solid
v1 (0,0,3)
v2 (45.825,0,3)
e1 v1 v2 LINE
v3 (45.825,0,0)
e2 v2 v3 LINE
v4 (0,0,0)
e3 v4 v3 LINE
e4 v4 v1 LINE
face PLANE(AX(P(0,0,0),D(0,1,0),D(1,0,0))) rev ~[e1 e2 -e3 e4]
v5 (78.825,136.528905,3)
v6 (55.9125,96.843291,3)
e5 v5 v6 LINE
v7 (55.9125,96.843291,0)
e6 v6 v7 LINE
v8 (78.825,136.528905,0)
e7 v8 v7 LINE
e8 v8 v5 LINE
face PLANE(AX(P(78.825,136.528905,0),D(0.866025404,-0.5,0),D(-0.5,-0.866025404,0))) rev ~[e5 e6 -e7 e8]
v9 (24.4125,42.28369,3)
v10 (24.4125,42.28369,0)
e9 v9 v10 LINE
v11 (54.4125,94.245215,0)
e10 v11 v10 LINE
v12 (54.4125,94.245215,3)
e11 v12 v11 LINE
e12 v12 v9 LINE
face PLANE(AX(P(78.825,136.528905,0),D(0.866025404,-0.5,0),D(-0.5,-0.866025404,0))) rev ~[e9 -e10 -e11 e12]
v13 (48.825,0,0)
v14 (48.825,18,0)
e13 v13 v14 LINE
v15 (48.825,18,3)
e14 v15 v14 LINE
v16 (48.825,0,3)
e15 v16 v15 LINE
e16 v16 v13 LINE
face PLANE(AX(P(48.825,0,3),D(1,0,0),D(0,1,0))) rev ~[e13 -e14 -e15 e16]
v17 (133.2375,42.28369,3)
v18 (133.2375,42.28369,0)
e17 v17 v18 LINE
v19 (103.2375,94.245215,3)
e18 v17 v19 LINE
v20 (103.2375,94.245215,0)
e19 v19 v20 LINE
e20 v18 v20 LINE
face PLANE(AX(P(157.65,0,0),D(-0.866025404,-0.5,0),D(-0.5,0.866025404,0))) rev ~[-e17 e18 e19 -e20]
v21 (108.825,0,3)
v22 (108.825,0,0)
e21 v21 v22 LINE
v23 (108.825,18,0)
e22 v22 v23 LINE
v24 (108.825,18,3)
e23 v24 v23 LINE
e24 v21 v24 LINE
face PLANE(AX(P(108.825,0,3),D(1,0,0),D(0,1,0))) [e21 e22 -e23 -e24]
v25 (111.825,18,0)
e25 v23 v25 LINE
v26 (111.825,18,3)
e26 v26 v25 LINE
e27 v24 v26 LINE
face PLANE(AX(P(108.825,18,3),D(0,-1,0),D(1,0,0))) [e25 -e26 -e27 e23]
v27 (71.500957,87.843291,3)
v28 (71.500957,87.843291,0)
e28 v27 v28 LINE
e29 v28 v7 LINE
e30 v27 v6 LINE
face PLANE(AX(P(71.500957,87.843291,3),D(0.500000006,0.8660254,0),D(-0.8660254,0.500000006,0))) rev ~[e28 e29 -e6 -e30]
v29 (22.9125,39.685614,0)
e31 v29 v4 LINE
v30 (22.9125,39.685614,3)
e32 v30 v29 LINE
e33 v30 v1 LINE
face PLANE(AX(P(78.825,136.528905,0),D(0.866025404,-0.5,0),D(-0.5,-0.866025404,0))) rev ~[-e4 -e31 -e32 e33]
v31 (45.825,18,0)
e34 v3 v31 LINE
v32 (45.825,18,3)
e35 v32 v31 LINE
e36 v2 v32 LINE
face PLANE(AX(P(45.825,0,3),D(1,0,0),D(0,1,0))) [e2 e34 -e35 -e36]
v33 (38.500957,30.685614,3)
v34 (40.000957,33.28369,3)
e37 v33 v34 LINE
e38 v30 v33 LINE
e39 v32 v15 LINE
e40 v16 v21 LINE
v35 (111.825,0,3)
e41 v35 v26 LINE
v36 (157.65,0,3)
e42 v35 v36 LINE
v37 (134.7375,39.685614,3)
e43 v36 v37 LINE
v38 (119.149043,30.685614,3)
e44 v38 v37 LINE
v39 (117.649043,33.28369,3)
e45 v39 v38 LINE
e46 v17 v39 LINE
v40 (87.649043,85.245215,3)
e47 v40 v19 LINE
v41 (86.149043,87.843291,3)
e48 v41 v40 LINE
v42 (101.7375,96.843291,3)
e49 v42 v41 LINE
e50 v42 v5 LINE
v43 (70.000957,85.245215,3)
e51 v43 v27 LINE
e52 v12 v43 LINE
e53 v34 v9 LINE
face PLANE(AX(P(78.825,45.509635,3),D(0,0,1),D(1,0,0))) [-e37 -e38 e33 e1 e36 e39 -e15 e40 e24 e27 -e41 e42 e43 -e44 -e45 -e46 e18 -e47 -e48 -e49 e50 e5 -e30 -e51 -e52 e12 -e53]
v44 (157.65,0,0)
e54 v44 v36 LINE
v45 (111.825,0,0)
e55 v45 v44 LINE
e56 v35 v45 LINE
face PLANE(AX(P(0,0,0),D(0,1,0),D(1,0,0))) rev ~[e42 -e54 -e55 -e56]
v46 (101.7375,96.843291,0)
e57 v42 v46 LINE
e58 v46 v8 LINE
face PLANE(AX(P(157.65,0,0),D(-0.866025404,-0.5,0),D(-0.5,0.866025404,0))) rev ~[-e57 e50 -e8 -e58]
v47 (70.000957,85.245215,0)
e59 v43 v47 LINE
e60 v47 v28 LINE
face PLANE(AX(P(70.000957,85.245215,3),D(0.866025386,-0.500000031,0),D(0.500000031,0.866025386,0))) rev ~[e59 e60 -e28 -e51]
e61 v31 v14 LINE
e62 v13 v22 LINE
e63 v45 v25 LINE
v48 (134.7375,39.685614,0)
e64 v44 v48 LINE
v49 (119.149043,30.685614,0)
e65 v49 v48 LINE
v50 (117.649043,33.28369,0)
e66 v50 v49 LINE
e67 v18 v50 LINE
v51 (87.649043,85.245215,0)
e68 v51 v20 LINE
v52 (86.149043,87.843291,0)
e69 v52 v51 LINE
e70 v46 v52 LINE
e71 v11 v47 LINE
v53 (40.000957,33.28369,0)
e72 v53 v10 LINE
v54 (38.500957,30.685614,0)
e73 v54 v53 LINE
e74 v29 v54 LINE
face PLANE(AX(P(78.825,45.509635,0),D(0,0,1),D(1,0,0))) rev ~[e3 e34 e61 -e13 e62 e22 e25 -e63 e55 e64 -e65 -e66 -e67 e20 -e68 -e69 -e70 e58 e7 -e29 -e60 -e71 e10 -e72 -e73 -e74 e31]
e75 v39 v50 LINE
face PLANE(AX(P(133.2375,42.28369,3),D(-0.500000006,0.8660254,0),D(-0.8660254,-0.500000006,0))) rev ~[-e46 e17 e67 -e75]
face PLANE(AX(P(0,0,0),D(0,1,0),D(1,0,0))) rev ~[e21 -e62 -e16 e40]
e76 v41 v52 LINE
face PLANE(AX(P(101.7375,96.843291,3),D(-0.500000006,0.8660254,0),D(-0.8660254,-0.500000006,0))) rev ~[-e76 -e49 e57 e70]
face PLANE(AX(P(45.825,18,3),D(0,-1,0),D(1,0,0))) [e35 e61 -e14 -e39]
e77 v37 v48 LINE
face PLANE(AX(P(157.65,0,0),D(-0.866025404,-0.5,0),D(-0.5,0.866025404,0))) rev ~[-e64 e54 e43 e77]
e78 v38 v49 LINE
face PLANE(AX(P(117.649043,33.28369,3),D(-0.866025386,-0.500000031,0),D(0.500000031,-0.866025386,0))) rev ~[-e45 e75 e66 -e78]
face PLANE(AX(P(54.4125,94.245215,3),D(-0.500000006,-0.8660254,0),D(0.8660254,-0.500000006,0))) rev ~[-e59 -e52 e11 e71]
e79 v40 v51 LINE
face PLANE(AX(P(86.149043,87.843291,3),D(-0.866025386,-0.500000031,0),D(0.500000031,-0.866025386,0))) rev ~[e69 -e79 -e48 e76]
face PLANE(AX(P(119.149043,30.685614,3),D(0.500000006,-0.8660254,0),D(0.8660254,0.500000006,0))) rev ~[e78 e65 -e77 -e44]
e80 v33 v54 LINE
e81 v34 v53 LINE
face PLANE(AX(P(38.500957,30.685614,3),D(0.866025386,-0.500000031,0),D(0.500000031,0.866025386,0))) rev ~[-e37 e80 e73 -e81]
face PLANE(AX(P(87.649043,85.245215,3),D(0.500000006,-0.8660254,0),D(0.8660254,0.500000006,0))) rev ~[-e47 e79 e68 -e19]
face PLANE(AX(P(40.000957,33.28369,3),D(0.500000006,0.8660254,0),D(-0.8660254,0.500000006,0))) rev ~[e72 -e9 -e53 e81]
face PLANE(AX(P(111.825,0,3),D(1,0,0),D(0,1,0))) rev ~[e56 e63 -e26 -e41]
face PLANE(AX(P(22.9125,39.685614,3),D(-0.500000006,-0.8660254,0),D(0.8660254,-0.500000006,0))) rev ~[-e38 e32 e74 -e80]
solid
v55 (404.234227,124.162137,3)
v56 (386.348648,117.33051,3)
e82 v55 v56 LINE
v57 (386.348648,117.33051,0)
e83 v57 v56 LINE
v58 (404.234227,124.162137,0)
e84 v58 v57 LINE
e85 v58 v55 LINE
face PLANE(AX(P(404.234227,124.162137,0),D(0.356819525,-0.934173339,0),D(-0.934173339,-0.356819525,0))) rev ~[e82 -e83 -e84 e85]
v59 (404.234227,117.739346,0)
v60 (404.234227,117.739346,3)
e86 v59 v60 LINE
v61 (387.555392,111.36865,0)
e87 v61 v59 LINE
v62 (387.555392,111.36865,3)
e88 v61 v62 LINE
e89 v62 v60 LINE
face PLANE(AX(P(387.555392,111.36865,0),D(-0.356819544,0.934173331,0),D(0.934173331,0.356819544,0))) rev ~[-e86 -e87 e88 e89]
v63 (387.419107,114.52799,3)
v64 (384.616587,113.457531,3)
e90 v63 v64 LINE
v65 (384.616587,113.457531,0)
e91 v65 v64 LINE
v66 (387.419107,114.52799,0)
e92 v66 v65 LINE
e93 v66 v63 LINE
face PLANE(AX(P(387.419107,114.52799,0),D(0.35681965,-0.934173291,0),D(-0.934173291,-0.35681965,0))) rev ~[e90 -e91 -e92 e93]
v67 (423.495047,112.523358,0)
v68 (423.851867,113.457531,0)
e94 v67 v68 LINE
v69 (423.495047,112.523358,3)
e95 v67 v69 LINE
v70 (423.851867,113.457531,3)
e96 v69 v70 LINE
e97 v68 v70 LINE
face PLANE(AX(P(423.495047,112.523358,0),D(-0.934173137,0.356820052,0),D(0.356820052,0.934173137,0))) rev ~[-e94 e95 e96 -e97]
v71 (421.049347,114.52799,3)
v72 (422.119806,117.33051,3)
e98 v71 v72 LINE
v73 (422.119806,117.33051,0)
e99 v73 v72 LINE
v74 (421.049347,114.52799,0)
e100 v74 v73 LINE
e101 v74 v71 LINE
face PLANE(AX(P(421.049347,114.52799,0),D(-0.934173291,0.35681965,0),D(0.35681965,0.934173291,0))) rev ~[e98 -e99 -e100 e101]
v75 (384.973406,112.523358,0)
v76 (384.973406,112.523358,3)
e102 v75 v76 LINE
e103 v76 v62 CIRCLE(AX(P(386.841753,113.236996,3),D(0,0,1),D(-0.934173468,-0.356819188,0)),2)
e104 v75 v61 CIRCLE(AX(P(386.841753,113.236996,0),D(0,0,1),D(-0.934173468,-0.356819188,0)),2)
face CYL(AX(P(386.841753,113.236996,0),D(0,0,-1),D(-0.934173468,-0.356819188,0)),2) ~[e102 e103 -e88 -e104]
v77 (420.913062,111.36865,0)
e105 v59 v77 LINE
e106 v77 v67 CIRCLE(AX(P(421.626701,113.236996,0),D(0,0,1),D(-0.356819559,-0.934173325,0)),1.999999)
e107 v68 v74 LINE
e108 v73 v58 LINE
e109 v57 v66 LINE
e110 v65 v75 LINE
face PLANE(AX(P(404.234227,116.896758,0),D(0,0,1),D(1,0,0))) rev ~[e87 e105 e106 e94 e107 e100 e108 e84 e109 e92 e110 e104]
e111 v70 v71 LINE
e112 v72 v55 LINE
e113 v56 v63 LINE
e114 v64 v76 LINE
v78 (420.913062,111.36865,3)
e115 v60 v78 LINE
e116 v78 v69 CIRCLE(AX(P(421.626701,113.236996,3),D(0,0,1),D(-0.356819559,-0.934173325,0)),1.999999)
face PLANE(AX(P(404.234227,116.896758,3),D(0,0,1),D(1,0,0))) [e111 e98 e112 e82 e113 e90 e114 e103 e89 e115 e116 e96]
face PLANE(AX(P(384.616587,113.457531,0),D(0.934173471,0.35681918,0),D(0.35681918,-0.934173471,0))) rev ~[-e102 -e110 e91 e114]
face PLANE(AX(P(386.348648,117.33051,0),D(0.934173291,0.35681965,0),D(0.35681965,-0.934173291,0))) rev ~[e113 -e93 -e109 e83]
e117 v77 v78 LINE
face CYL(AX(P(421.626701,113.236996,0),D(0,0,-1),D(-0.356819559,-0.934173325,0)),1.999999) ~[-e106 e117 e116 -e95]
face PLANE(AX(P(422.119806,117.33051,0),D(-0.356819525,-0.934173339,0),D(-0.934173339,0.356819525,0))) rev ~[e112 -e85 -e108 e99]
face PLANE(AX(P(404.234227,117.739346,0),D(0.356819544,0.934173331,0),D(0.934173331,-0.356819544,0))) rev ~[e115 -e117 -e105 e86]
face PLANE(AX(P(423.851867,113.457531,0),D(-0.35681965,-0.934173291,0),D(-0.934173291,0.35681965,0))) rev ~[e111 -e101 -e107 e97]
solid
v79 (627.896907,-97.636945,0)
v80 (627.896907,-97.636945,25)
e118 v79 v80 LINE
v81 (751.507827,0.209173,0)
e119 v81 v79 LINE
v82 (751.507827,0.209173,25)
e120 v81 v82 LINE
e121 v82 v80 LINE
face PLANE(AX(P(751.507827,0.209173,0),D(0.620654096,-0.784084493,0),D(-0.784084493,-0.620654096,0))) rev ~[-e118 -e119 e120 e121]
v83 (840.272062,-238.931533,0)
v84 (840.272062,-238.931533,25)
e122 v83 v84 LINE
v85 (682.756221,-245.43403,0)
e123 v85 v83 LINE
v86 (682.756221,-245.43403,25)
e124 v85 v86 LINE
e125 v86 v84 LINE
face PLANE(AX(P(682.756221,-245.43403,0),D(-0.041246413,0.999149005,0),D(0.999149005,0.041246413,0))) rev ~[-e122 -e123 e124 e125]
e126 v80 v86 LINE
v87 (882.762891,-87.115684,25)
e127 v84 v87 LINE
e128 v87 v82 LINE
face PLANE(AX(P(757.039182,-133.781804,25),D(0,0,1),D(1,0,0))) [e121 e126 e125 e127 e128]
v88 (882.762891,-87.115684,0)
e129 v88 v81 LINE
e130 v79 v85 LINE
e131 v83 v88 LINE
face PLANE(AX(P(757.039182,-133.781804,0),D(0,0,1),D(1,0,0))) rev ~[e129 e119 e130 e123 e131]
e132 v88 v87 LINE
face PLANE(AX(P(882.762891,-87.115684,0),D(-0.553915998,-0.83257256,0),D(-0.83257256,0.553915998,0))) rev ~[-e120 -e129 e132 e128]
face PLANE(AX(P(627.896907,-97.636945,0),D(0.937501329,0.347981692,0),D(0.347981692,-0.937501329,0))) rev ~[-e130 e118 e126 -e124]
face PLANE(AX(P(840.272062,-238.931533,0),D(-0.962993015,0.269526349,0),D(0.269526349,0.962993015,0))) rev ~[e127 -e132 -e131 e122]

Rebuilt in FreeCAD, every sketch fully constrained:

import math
import FreeCAD as App
import Part
import Sketcher
from FreeCAD import Vector
Q = App.Units.Quantity


def add_polygon(sketch, points):
    """Adds a closed chain of lines whose ends are joined by coincident constraints."""
    first, n = sketch.GeometryCount, len(points)
    for a, b in zip(points, points[1:] + points[:1]):
        sketch.addGeometry(Part.LineSegment(App.Vector(*a, 0), App.Vector(*b, 0)), False)
    for i in range(n):
        sketch.addConstraint(Sketcher.Constraint("Coincident", first + i, 2, first + (i + 1) % n, 1))

doc = App.newDocument("Part")
body = doc.addObject("PartDesign::Body", "Body")

# Sketch on XY plane
sketch1 = body.newObject("Sketcher::SketchObject", "Sketch")
sketch1.AttachmentSupport = (doc.getObject("XY_Plane"), [""])
sketch1.MapMode = "FlatFace"
add_polygon(sketch1, [(78.825, 136.528905), (0, 0), (157.65, 0)])  # lines 0-2
sketch1.addConstraint([
    Sketcher.Constraint("Horizontal", 1),
    Sketcher.Constraint("Coincident", 0, 2, -1, 1),
    Sketcher.Constraint("Equal", 0, 2),
    Sketcher.Constraint("Angle", 0, Q("-120 deg")),
    Sketcher.Constraint("DistanceX", 1, 1, 1, 2, Q("157.65 mm")),
])
pad1 = body.newObject("PartDesign::Pad", "Pad")
pad1.Profile = sketch1
pad1.Length = 3

# Sketch on XY plane
sketch2 = body.newObject("Sketcher::SketchObject", "Sketch001")
sketch2.AttachmentSupport = (doc.getObject("XY_Plane"), [""])
sketch2.MapMode = "FlatFace"
sketch2.AttachmentOffset = App.Placement(Vector(0, 0, 3), App.Rotation())
add_polygon(sketch2, [(45.825, 18), (45.825, 0), (48.825, 0), (48.825, 18)])  # lines 0-3
add_polygon(sketch2, [(108.825, 18), (108.825, 0), (111.825, 0), (111.825, 18)])  # lines 4-7
add_polygon(sketch2, [(38.500957, 30.685614), (40.000957, 33.28369), (24.4125, 42.28369), (22.9125, 39.685614)])  # lines 8-11
add_polygon(sketch2, [(70.000957, 85.245215), (71.500957, 87.843291), (55.9125, 96.843291), (54.4125, 94.245215)])  # lines 12-15
add_polygon(sketch2, [(103.2375, 94.245215), (101.7375, 96.843291), (86.149043, 87.843291), (87.649043, 85.245215)])  # lines 16-19
add_polygon(sketch2, [(134.7375, 39.685614), (133.2375, 42.28369), (117.649043, 33.28369), (119.149043, 30.685614)])  # lines 20-23
sketch2.addConstraint([
    Sketcher.Constraint("Vertical", 0),
    Sketcher.Constraint("Horizontal", 1),
    Sketcher.Constraint("Vertical", 2),
    Sketcher.Constraint("Horizontal", 3),
    Sketcher.Constraint("Vertical", 4),
    Sketcher.Constraint("Horizontal", 5),
    Sketcher.Constraint("Vertical", 6),
    Sketcher.Constraint("Horizontal", 7),
    Sketcher.Constraint("PointOnObject", 0, 2, -1),
    Sketcher.Constraint("PointOnObject", 4, 2, -1),
    Sketcher.Constraint("Perpendicular", 8, 9),
    Sketcher.Constraint("Perpendicular", 9, 10),
    Sketcher.Constraint("Perpendicular", 10, 11),
    Sketcher.Constraint("Perpendicular", 11, 12),
    Sketcher.Constraint("Perpendicular", 12, 13),
    Sketcher.Constraint("Perpendicular", 13, 14),
    Sketcher.Constraint("Perpendicular", 14, 15),
    Sketcher.Constraint("Perpendicular", 16, 17),
    Sketcher.Constraint("Perpendicular", 17, 18),
    Sketcher.Constraint("Perpendicular", 18, 19),
    Sketcher.Constraint("Perpendicular", 19, 20),
    Sketcher.Constraint("Perpendicular", 20, 21),
    Sketcher.Constraint("Perpendicular", 21, 22),
    Sketcher.Constraint("Perpendicular", 22, 23),
    Sketcher.Constraint("Horizontal", 3, 2, 6, 2),
    Sketcher.Constraint("Horizontal", 13, 2, 16, 2),
    Sketcher.Constraint("Horizontal", 12, 2, 17, 2),
    Sketcher.Constraint("Horizontal", 15, 2, 18, 2),
    Sketcher.Constraint("Horizontal", 9, 2, 20, 2),
    Sketcher.Constraint("Horizontal", 8, 2, 21, 2),
    Sketcher.Constraint("Horizontal", 11, 2, 22, 2),
    Sketcher.Constraint("Equal", 3, 5),
    Sketcher.Constraint("Equal", 10, 12),
    Sketcher.Constraint("Equal", 11, 13),
    Sketcher.Constraint("Equal", 14, 16),
    Sketcher.Constraint("DistanceX", 1, 1, 1, 2, Q("3 mm")),
    Sketcher.Constraint("DistanceY", 0, 2, 0, 1, Q("18 mm")),
    Sketcher.Constraint("Angle", 8, Q("59.999998 deg")),
    Sketcher.Constraint("Distance", 8, Q("3 mm")),
    Sketcher.Constraint("Distance", 9, Q("18 mm")),
    Sketcher.Constraint("DistanceX", 1, 2, 4, 2, Q("60 mm")),
    Sketcher.Constraint("DistanceX", 11, 2, 12, 2, Q("33 mm")),
    Sketcher.Constraint("DistanceX", 19, 2, 20, 2, Q("30 mm")),
    Sketcher.Constraint("DistanceX", -1, 1, 0, 2, Q("45.825 mm")),
    Sketcher.Constraint("DistanceX", 13, 2, 16, 2, Q("45.825 mm")),
    Sketcher.Constraint("DistanceX", -1, 1, 9, 2, Q("24.4125 mm")),
    Sketcher.Constraint("DistanceY", 8, 2, 12, 2, Q("54.559601 mm")),
    Sketcher.Constraint("DistanceY", -1, 1, 8, 2, Q("33.28369 mm")),
])
pocket1 = body.newObject("PartDesign::Pocket", "Pocket")
pocket1.Profile = sketch2
pocket1.Length = 25
body2 = doc.addObject("PartDesign::Body", "Body001")

# Sketch on XY plane
sketch3 = body2.newObject("Sketcher::SketchObject", "Sketch002")
sketch3.AttachmentSupport = (doc.getObject("XY_Plane001"), [""])
sketch3.MapMode = "FlatFace"
add_polygon(sketch3, [(840.272062, -238.931533), (882.762891, -87.115684), (751.507827, 0.209173), (627.896907, -97.636945), (682.756221, -245.43403)])  # lines 0-4
sketch3.addConstraint([
    Sketcher.Constraint("Equal", 0, 1),
    Sketcher.Constraint("Equal", 1, 2),
    Sketcher.Constraint("Equal", 2, 3),
    Sketcher.Constraint("Equal", 3, 4),
    Sketcher.Constraint("Distance", 0, Q("157.65 mm")),
    Sketcher.Constraint("DistanceX", -1, 1, 0, 2, Q("882.762891 mm")),
    Sketcher.Constraint("DistanceX", -1, 1, 3, 2, Q("682.756221 mm")),
    Sketcher.Constraint("DistanceY", 3, 2, -1, 1, Q("245.43403 mm")),
    Sketcher.Constraint("DistanceX", -1, 1, 4, 2, Q("840.272062 mm")),
    Sketcher.Constraint("DistanceX", 2, 2, 1, 2, Q("123.61092 mm")),
])
pad2 = body2.newObject("PartDesign::Pad", "Pad001")
pad2.Profile = sketch3
pad2.Length = 25
body3 = doc.addObject("PartDesign::Body", "Body002")

# Sketch on XY plane
sketch4 = body3.newObject("Sketcher::SketchObject", "Sketch003")
sketch4.AttachmentSupport = (doc.getObject("XY_Plane002"), [""])
sketch4.MapMode = "FlatFace"
sketch4.addGeometry([
    Part.LineSegment(Vector(422.119806, 117.33051, 0), Vector(404.234227, 124.162137, 0)),  # 0
    Part.LineSegment(Vector(404.234227, 124.162137, 0), Vector(386.348648, 117.33051, 0)),  # 1
    Part.LineSegment(Vector(386.348648, 117.33051, 0), Vector(387.419107, 114.52799, 0)),  # 2
    Part.LineSegment(Vector(387.419107, 114.52799, 0), Vector(384.616587, 113.457531, 0)),  # 3
    Part.LineSegment(Vector(384.616587, 113.457531, 0), Vector(384.973406, 112.523358, 0)),  # 4
    Part.ArcOfCircle(Part.Circle(Vector(386.841753, 113.236996, 0), Vector(0, 0, 1), 2), math.radians(-159.095021), math.radians(-69.094988)),  # 5
    Part.LineSegment(Vector(387.555392, 111.36865, 0), Vector(404.234227, 117.739346, 0)),  # 6
    Part.LineSegment(Vector(404.234227, 117.739346, 0), Vector(420.913062, 111.36865, 0)),  # 7
    Part.ArcOfCircle(Part.Circle(Vector(421.626701, 113.236996, 0), Vector(0, 0, 1), 1.999999), math.radians(-110.905002), math.radians(-20.904972)),  # 8
    Part.LineSegment(Vector(423.495047, 112.523358, 0), Vector(423.851867, 113.457531, 0)),  # 9
    Part.LineSegment(Vector(423.851867, 113.457531, 0), Vector(421.049347, 114.52799, 0)),  # 10
    Part.LineSegment(Vector(421.049347, 114.52799, 0), Vector(422.119806, 117.33051, 0)),  # 11
], False)
sketch4.addConstraint([
    Sketcher.Constraint("Coincident", 0, 2, 1, 1),
    Sketcher.Constraint("Coincident", 1, 2, 2, 1),
    Sketcher.Constraint("Coincident", 2, 2, 3, 1),
    Sketcher.Constraint("Coincident", 3, 2, 4, 1),
    Sketcher.Constraint("Tangent", 4, 2, 5, 1),
    Sketcher.Constraint("Tangent", 5, 2, 6, 1),
    Sketcher.Constraint("Coincident", 6, 2, 7, 1),
    Sketcher.Constraint("Tangent", 7, 2, 8, 1),
    Sketcher.Constraint("Tangent", 8, 2, 9, 1),
    Sketcher.Constraint("Coincident", 9, 2, 10, 1),
    Sketcher.Constraint("Coincident", 10, 2, 11, 1),
    Sketcher.Constraint("Coincident", 11, 2, 0, 1),
    Sketcher.Constraint("Equal", 5, 8),
    Sketcher.Constraint("Perpendicular", 1, 2),
    Sketcher.Constraint("Perpendicular", 2, 3),
    Sketcher.Constraint("Perpendicular", 3, 4),
    Sketcher.Constraint("Perpendicular", 4, 6),
    Sketcher.Constraint("Parallel", 0, 7),
    Sketcher.Constraint("Perpendicular", 7, 9),
    Sketcher.Constraint("Perpendicular", 9, 10),
    Sketcher.Constraint("Perpendicular", 10, 11),
    Sketcher.Constraint("Horizontal", 5, 3, 8, 3),
    Sketcher.Constraint("Horizontal", 5, 2, 7, 2),
    Sketcher.Constraint("Horizontal", 3, 2, 9, 2),
    Sketcher.Constraint("Horizontal", 2, 2, 10, 2),
    Sketcher.Constraint("Horizontal", 1, 2, 11, 2),
    Sketcher.Constraint("Equal", 2, 3),
    Sketcher.Constraint("Radius", 5, Q("2 mm")),
    Sketcher.Constraint("Distance", 2, Q("3 mm")),
    Sketcher.Constraint("Distance", 4, Q("0.999999 mm")),
    Sketcher.Constraint("DistanceX", -1, 1, 8, 3, Q("421.626701 mm")),
    Sketcher.Constraint("DistanceX", 4, 2, 2, 2, Q("2.445701 mm")),
    Sketcher.Constraint("Distance", 0, Q("19.145889 mm")),
    Sketcher.Constraint("DistanceY", -1, 1, 1, 2, Q("117.33051 mm")),
])
pad3 = body3.newObject("PartDesign::Pad", "Pad002")
pad3.Profile = sketch4
pad3.Length = 3

doc.recompute()
